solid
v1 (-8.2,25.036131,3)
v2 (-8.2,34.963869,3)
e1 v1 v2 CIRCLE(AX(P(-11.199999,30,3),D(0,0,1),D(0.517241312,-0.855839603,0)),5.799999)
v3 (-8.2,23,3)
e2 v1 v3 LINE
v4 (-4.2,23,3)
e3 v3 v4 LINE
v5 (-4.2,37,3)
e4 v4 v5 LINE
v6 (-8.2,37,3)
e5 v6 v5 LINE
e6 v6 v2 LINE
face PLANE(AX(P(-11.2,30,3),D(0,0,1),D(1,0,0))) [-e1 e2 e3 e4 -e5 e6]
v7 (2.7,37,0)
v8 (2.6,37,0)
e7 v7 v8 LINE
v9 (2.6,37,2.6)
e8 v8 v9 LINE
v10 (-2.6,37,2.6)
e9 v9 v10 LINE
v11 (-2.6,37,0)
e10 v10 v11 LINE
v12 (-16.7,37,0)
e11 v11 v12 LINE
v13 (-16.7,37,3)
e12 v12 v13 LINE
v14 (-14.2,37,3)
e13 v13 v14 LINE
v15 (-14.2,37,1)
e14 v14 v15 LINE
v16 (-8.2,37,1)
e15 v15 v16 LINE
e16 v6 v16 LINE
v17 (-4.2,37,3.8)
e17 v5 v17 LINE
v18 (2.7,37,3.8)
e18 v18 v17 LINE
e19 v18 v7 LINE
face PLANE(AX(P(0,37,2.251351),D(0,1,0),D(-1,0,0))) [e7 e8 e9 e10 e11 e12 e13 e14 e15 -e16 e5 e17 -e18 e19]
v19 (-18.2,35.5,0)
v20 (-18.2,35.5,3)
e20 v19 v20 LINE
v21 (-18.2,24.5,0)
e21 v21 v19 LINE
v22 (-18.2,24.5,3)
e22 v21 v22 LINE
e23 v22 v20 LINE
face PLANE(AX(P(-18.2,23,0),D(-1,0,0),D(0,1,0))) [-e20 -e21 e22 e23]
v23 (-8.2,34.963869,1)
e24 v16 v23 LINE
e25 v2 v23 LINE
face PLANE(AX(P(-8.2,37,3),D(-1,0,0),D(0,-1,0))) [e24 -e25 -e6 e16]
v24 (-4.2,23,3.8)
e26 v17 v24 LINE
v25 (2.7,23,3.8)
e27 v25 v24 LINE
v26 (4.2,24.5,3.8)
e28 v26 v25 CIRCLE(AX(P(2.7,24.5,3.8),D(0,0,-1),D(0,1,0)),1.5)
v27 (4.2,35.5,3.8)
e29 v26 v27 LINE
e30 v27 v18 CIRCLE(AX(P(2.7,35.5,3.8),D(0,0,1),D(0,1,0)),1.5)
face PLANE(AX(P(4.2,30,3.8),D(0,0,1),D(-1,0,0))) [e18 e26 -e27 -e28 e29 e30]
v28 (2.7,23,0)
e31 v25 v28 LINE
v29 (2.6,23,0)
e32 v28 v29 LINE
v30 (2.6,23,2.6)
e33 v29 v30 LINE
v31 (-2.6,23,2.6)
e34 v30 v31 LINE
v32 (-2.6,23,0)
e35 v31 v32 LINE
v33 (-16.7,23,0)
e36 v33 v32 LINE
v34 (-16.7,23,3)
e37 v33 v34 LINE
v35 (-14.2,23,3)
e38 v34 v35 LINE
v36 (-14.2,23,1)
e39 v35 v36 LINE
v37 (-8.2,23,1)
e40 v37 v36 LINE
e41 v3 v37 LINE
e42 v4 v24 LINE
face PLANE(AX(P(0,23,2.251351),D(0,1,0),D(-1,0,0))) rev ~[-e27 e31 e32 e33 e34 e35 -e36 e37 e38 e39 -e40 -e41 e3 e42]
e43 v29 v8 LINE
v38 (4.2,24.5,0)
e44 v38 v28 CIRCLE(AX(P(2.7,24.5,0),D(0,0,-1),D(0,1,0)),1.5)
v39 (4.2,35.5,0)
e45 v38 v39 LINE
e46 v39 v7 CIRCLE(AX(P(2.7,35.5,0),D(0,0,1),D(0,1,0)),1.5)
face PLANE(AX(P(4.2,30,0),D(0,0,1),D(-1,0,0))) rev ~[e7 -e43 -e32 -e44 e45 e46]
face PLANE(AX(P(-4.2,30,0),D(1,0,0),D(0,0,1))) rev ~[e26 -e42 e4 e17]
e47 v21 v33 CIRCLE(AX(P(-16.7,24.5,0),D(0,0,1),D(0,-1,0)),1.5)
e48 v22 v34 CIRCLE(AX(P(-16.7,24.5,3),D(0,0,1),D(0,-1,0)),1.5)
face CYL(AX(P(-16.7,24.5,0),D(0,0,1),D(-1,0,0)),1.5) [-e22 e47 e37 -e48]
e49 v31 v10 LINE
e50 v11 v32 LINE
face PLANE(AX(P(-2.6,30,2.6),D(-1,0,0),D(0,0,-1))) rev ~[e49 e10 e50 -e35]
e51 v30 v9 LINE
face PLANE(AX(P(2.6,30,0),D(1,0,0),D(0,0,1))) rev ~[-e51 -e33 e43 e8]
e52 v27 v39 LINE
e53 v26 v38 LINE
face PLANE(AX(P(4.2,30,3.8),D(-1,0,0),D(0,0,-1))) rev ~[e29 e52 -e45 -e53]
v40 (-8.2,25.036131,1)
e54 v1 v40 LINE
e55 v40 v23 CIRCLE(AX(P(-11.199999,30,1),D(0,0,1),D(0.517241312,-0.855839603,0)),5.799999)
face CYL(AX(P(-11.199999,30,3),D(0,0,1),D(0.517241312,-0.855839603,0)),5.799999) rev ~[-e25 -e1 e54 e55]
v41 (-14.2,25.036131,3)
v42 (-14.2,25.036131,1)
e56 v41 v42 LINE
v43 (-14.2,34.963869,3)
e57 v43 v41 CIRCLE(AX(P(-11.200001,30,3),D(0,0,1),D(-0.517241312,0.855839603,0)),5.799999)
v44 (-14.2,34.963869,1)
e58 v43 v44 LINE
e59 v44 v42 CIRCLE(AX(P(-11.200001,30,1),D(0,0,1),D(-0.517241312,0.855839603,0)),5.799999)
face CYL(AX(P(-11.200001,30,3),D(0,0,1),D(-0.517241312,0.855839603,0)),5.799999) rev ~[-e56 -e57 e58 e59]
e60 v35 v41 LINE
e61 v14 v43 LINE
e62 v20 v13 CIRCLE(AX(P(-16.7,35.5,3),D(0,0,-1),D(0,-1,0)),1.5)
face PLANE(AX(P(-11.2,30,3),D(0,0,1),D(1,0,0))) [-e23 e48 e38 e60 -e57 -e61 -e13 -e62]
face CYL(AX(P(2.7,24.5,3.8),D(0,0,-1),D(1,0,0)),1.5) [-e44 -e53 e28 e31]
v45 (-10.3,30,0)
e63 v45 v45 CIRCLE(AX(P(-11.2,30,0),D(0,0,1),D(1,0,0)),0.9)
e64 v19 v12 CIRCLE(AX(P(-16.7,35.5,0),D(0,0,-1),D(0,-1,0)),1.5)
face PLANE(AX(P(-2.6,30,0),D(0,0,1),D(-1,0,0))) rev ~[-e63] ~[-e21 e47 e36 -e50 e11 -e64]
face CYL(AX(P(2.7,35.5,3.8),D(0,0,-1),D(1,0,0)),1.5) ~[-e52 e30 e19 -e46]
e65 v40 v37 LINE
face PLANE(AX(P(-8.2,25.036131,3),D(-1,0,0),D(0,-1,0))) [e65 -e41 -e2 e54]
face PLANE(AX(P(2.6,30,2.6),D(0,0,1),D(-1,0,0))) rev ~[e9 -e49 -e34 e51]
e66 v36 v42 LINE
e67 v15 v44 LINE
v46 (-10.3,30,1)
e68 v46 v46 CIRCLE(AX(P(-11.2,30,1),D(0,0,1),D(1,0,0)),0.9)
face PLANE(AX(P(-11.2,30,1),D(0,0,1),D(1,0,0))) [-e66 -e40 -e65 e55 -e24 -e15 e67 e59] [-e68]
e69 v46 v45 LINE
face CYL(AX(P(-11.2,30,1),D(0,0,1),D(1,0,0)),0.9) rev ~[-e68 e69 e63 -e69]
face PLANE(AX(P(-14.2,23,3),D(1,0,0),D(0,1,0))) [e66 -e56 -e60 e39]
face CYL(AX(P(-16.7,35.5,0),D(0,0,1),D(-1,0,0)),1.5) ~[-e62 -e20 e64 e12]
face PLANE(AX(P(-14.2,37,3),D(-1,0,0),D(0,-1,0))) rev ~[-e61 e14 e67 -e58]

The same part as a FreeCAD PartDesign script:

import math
import FreeCAD as App
import Part
import Sketcher
Q = App.Units.Quantity


def edges_at(feature, points):
    """Names of the edges that pass closest to the given points."""
    edges = feature.Shape.Edges
    near = lambda p: min(range(len(edges)), key=lambda i: edges[i].distToShape(Part.Vertex(*p))[0])
    return sorted({f"Edge{near(p) + 1}" for p in points})

doc = App.newDocument("Part")
params = doc.addObject("Spreadsheet::Sheet", "Params")
for row, (alias, value) in enumerate([
    ("sketch1_width", "8.4 mm"),
    ("sketch1_width2", "1.6 mm"),
    ("sketch1_height", "3.8 mm"),
    ("sketch1_height2", "2.6 mm"),
    ("pad1_length", "14 mm"),
    ("sketch2_width", "14 mm"),
    ("pad2_length", "3 mm"),
    ("sketch3_radius", "5.799999 mm"),
    ("sketch3_width", "6 mm"),
    ("pocket1_length", "2 mm"),
    ("sketch4_diameter", "1.8 mm"),
    ("fillet_radius", "1.5 mm"),
], start=1):
    params.set(f"A{row}", alias)
    params.set(f"B{row}", "=" + value)
    params.setAlias(f"B{row}", alias)

body = doc.addObject("PartDesign::Body", "Body")

# Sketch on XZ plane
sketch1 = doc.addObject("Sketcher::SketchObject", "Sketch")
body.addObject(sketch1)
sketch1.AttachmentSupport = (doc.XZ_Plane, [""])
sketch1.MapMode = "FlatFace"
sketch1.addGeometry([
    Part.LineSegment(App.Vector(4.2, 3.8, 0), App.Vector(-4.2, 3.8, 0)),  # 0
    Part.LineSegment(App.Vector(-4.2, 3.8, 0), App.Vector(-4.2, 0, 0)),  # 1
    Part.LineSegment(App.Vector(-4.2, 0, 0), App.Vector(-2.6, 0, 0)),  # 2
    Part.LineSegment(App.Vector(-2.6, 0, 0), App.Vector(-2.6, 2.6, 0)),  # 3
    Part.LineSegment(App.Vector(-2.6, 2.6, 0), App.Vector(2.6, 2.6, 0)),  # 4
    Part.LineSegment(App.Vector(2.6, 2.6, 0), App.Vector(2.6, 0, 0)),  # 5
    Part.LineSegment(App.Vector(2.6, 0, 0), App.Vector(4.2, 0, 0)),  # 6
    Part.LineSegment(App.Vector(4.2, 0, 0), App.Vector(4.2, 3.8, 0)),  # 7
], False)
sketch1.addConstraint([
    Sketcher.Constraint("Coincident", 0, 2, 1, 1),
    Sketcher.Constraint("Coincident", 1, 2, 2, 1),
    Sketcher.Constraint("Coincident", 2, 2, 3, 1),
    Sketcher.Constraint("Coincident", 3, 2, 4, 1),
    Sketcher.Constraint("Coincident", 4, 2, 5, 1),
    Sketcher.Constraint("Coincident", 5, 2, 6, 1),
    Sketcher.Constraint("Coincident", 6, 2, 7, 1),
    Sketcher.Constraint("Coincident", 7, 2, 0, 1),
    Sketcher.Constraint("Horizontal", 0),
    Sketcher.Constraint("Vertical", 1),
    Sketcher.Constraint("Horizontal", 2),
    Sketcher.Constraint("Vertical", 3),
    Sketcher.Constraint("Horizontal", 4),
    Sketcher.Constraint("Vertical", 5),
    Sketcher.Constraint("Horizontal", 6),
    Sketcher.Constraint("Vertical", 7),
    Sketcher.Constraint("Symmetric", 2, 2, 5, 2, -1, 1),
    Sketcher.Constraint("Symmetric", 1, 2, 6, 2, -2),
    Sketcher.Constraint("DistanceX", 0, 2, 0, 1, Q("8.4 mm")),
    Sketcher.Constraint("DistanceX", 2, 1, 2, 2, Q("1.6 mm")),
    Sketcher.Constraint("DistanceY", 1, 2, 1, 1, Q("3.8 mm")),
    Sketcher.Constraint("DistanceY", 3, 1, 3, 2, Q("2.6 mm")),
])
sketch1.setExpression("Constraints[18]", "Params.sketch1_width")
sketch1.setExpression("Constraints[19]", "Params.sketch1_width2")
sketch1.setExpression("Constraints[20]", "Params.sketch1_height")
sketch1.setExpression("Constraints[21]", "Params.sketch1_height2")
pad1 = doc.addObject("PartDesign::Pad", "Pad")
body.addObject(pad1)
pad1.Profile = sketch1
pad1.setExpression("Length", "Params.pad1_length")
pad1.Midplane = True
body2 = doc.addObject("PartDesign::Body", "Body001")

# Sketch on XY plane
sketch2 = doc.addObject("Sketcher::SketchObject", "Sketch001")
body2.addObject(sketch2)
sketch2.AttachmentSupport = (doc.getObject("XY_Plane001"), [""])
sketch2.MapMode = "FlatFace"
sketch2.addGeometry([
    Part.LineSegment(App.Vector(-7, 7, 0), App.Vector(-7, -7, 0)),
    Part.LineSegment(App.Vector(-7, -7, 0), App.Vector(7, -7, 0)),
    Part.LineSegment(App.Vector(7, -7, 0), App.Vector(7, 7, 0)),
    Part.LineSegment(App.Vector(7, 7, 0), App.Vector(-7, 7, 0)),
], False)
sketch2.addConstraint([
    Sketcher.Constraint("Coincident", 0, 2, 1, 1),
    Sketcher.Constraint("Coincident", 1, 2, 2, 1),
    Sketcher.Constraint("Coincident", 2, 2, 3, 1),
    Sketcher.Constraint("Coincident", 3, 2, 0, 1),
    Sketcher.Constraint("Vertical", 0),
    Sketcher.Constraint("Horizontal", 1),
    Sketcher.Constraint("Vertical", 2),
    Sketcher.Constraint("Horizontal", 3),
    Sketcher.Constraint("Symmetric", 0, 2, 2, 2, -1, 1),
    Sketcher.Constraint("Equal", 3, 0),
    Sketcher.Constraint("DistanceX", 1, 1, 1, 2, Q("14 mm")),
])
sketch2.setExpression("Constraints[10]", "Params.sketch2_width")
pad2 = doc.addObject("PartDesign::Pad", "Pad001")
body2.addObject(pad2)
pad2.Profile = sketch2
pad2.setExpression("Length", "Params.pad2_length")

# Sketch on XY plane
sketch3 = doc.addObject("Sketcher::SketchObject", "Sketch002")
body2.addObject(sketch3)
sketch3.AttachmentSupport = (doc.getObject("XY_Plane001"), [""])
sketch3.MapMode = "FlatFace"
sketch3.AttachmentOffset = App.Placement(App.Vector(0, 0, 3), App.Rotation())
sketch3.addGeometry([
    Part.LineSegment(App.Vector(-3, 7, 0), App.Vector(-3, 5, 0)),  # 0
    Part.ArcOfCircle(Part.Circle(App.Vector(0, 0, 0), App.Vector(0, 0, 1), 5.8), math.radians(121), math.radians(239)),  # 1
    Part.LineSegment(App.Vector(-3, -5, 0), App.Vector(-3, -7, 0)),  # 2
    Part.LineSegment(App.Vector(-3, -7, 0), App.Vector(3, -7, 0)),  # 3
    Part.LineSegment(App.Vector(3, -7, 0), App.Vector(3, -5, 0)),  # 4
    Part.ArcOfCircle(Part.Circle(App.Vector(0, 0, 0), App.Vector(0, 0, 1), 5.8), math.radians(-59), math.radians(59)),  # 5
    Part.LineSegment(App.Vector(3, 5, 0), App.Vector(3, 7, 0)),  # 6
    Part.LineSegment(App.Vector(3, 7, 0), App.Vector(-3, 7, 0)),  # 7
], False)
sketch3.addConstraint([
    Sketcher.Constraint("Coincident", 0, 2, 1, 1),
    Sketcher.Constraint("Coincident", 1, 2, 2, 1),
    Sketcher.Constraint("Coincident", 2, 2, 3, 1),
    Sketcher.Constraint("Coincident", 3, 2, 4, 1),
    Sketcher.Constraint("Coincident", 4, 2, 5, 1),
    Sketcher.Constraint("Coincident", 5, 2, 6, 1),
    Sketcher.Constraint("Coincident", 6, 2, 7, 1),
    Sketcher.Constraint("Coincident", 7, 2, 0, 1),
    Sketcher.Constraint("Vertical", 0),
    Sketcher.Constraint("Vertical", 2),
    Sketcher.Constraint("Horizontal", 3),
    Sketcher.Constraint("Vertical", 4),
    Sketcher.Constraint("Vertical", 6),
    Sketcher.Constraint("Horizontal", 7),
    Sketcher.Constraint("Coincident", 1, 3, -1, 1),
    Sketcher.Constraint("Coincident", 5, 3, -1, 1),
    Sketcher.Constraint("Equal", 1, 5),
    Sketcher.Constraint("Symmetric", 2, 2, 6, 2, -1, 1),
    Sketcher.Constraint("Horizontal", 1, 2, 4, 2),
    Sketcher.Constraint("Horizontal", 0, 2, 5, 2),
    Sketcher.Constraint("Radius", 1, Q("5.799999 mm")),
    Sketcher.Constraint("DistanceX", 3, 1, 3, 2, Q("6 mm")),
    Sketcher.Constraint("DistanceY", 2, 2, -1, 1, Q("7 mm")),
])
sketch3.setExpression("Constraints[20]", "Params.sketch3_radius")
sketch3.setExpression("Constraints[21]", "Params.sketch3_width")
pocket1 = doc.addObject("PartDesign::Pocket", "Pocket")
body2.addObject(pocket1)
pocket1.Profile = sketch3
pocket1.setExpression("Length", "Params.pocket1_length")

# Sketch on XY plane
sketch4 = doc.addObject("Sketcher::SketchObject", "Sketch003")
body2.addObject(sketch4)
sketch4.AttachmentSupport = (doc.getObject("XY_Plane001"), [""])
sketch4.MapMode = "FlatFace"
sketch4.AttachmentOffset = App.Placement(App.Vector(0, 0, 1), App.Rotation())
sketch4.addGeometry(Part.Circle(App.Vector(0, 0, 0), App.Vector(0, 0, 1), 0.9), False)
sketch4.addConstraint([
    Sketcher.Constraint("Coincident", 0, 3, -1, 1),
    Sketcher.Constraint("Diameter", 0, Q("1.8 mm")),
])
sketch4.setExpression("Constraints[1]", "Params.sketch4_diameter")
pocket2 = doc.addObject("PartDesign::Pocket", "Pocket001")
body2.addObject(pocket2)
pocket2.Profile = sketch4
pocket2.Type = "ThroughAll"
body3 = doc.addObject("PartDesign::Body", "Body002")
doc.recompute()

body2.Placement = App.Placement(App.Vector(-11.2, 0, 0), App.Rotation(App.Vector(0, 0, 1), 0))
boolean = doc.addObject("PartDesign::Boolean", "Boolean")
body3.addObject(boolean)
boolean.Type = "Fuse"
boolean.addObjects([body2])
doc.recompute()

boolean2 = doc.addObject("PartDesign::Boolean", "Boolean001")
body3.addObject(boolean2)
boolean2.Type = "Fuse"
boolean2.addObjects([body])
doc.recompute()

fillet = doc.addObject("PartDesign::Fillet", "Fillet")
body3.addObject(fillet)
fillet.Base = (boolean2, edges_at(boolean2, [
    (-18.2, -7, 1.5),
    (-18.2, 7, 1.5),
    (4.2, 7, 1.9),
    (4.2, -7, 1.9),
]))
fillet.setExpression("Radius", "Params.fillet_radius")
body4 = doc.addObject("PartDesign::Body", "Body003")
doc.recompute()

body3.Placement = App.Placement(App.Vector(0, 30, 0), App.Rotation(App.Vector(0, 0, 1), 0))
boolean3 = doc.addObject("PartDesign::Boolean", "Boolean002")
body4.addObject(boolean3)
boolean3.Type = "Fuse"
boolean3.addObjects([body3])

doc.recompute()
